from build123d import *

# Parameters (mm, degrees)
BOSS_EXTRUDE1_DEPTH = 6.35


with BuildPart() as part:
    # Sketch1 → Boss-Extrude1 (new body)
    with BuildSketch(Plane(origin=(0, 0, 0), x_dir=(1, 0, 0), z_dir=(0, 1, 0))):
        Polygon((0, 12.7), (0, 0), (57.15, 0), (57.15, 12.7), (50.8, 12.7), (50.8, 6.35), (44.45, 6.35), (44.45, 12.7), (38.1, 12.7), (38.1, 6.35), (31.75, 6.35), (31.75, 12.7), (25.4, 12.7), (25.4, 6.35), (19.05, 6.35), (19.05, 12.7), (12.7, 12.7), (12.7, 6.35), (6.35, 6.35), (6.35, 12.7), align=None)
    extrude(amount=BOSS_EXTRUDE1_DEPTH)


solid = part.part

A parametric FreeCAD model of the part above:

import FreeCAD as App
import Part
import Sketcher
from FreeCAD import Vector
Q = App.Units.Quantity


def add_polygon(sketch, points):
    """Adds a closed chain of lines whose ends are joined by coincident constraints."""
    first, n = sketch.GeometryCount, len(points)
    for a, b in zip(points, points[1:] + points[:1]):
        sketch.addGeometry(Part.LineSegment(App.Vector(*a, 0), App.Vector(*b, 0)), False)
    for i in range(n):
        sketch.addConstraint(Sketcher.Constraint("Coincident", first + i, 2, first + (i + 1) % n, 1))

doc = App.newDocument("Part")
params = doc.addObject("Spreadsheet::Sheet", "Params")
for row, (alias, value) in enumerate([
    ("sketch1_height", "0.5 in"),
    ("pad1_length", "0.25 in"),
], start=1):
    params.set(f"A{row}", alias)
    params.set(f"B{row}", "=" + value)
    params.setAlias(f"B{row}", alias)

body = doc.addObject("PartDesign::Body", "Body")

sketch1 = doc.addObject("Sketcher::SketchObject", "Sketch")
body.addObject(sketch1)
sketch1.AttachmentSupport = (doc.XZ_Plane, [""])
sketch1.MapMode = "FlatFace"
add_polygon(sketch1, [(0, -13), (0, 0), (57, 0), (57, -13), (51, -13), (51, -6), (44, -6), (44, -13), (38, -13), (38, -6), (32, -6), (32, -13), (25, -13), (25, -6), (19, -6), (19, -13), (13, -13), (13, -6), (6, -6), (6, -13)])
sketch1.addConstraint([
    Sketcher.Constraint("Vertical", 0),
    Sketcher.Constraint("Horizontal", 1),
    Sketcher.Constraint("Vertical", 2),
    Sketcher.Constraint("Horizontal", 3),
    Sketcher.Constraint("Vertical", 4),
    Sketcher.Constraint("Horizontal", 5),
    Sketcher.Constraint("Vertical", 6),
    Sketcher.Constraint("Horizontal", 7),
    Sketcher.Constraint("Vertical", 8),
    Sketcher.Constraint("Horizontal", 9),
    Sketcher.Constraint("Vertical", 10),
    Sketcher.Constraint("Horizontal", 11),
    Sketcher.Constraint("Vertical", 12),
    Sketcher.Constraint("Horizontal", 13),
    Sketcher.Constraint("Vertical", 14),
    Sketcher.Constraint("Horizontal", 15),
    Sketcher.Constraint("Vertical", 16),
    Sketcher.Constraint("Horizontal", 17),
    Sketcher.Constraint("Vertical", 18),
    Sketcher.Constraint("Horizontal", 19),
    Sketcher.Constraint("Coincident", 0, 2, -1, 1),
    Sketcher.Constraint("Horizontal", 3, 2, 6, 2),
    Sketcher.Constraint("Horizontal", 5, 2, 8, 2),
    Sketcher.Constraint("Horizontal", 7, 2, 10, 2),
    Sketcher.Constraint("Horizontal", 9, 2, 12, 2),
    Sketcher.Constraint("Horizontal", 11, 2, 14, 2),
    Sketcher.Constraint("Horizontal", 13, 2, 16, 2),
    Sketcher.Constraint("Horizontal", 15, 2, 18, 2),
    Sketcher.Constraint("Equal", 3, 5),
    Sketcher.Constraint("Equal", 5, 7),
    Sketcher.Constraint("Equal", 7, 9),
    Sketcher.Constraint("Equal", 9, 11),
    Sketcher.Constraint("Equal", 11, 13),
    Sketcher.Constraint("Equal", 13, 15),
    Sketcher.Constraint("Equal", 15, 17),
    Sketcher.Constraint("Equal", 17, 19),
    Sketcher.Constraint("Equal", 19, 4),
    Sketcher.Constraint("DistanceY", 0, 1, 0, 2, Q("0.5 in")),
    Sketcher.Constraint("DistanceX", -1, 1, 3, 2, Q("2 in")),
])
sketch1.setExpression("Constraints[57]", "Params.sketch1_height")
pad1 = doc.addObject("PartDesign::Pad", "Pad")
body.addObject(pad1)
pad1.Profile = sketch1
pad1.setExpression("Length", "Params.pad1_length")
pad1.Reversed = True

doc.recompute()
